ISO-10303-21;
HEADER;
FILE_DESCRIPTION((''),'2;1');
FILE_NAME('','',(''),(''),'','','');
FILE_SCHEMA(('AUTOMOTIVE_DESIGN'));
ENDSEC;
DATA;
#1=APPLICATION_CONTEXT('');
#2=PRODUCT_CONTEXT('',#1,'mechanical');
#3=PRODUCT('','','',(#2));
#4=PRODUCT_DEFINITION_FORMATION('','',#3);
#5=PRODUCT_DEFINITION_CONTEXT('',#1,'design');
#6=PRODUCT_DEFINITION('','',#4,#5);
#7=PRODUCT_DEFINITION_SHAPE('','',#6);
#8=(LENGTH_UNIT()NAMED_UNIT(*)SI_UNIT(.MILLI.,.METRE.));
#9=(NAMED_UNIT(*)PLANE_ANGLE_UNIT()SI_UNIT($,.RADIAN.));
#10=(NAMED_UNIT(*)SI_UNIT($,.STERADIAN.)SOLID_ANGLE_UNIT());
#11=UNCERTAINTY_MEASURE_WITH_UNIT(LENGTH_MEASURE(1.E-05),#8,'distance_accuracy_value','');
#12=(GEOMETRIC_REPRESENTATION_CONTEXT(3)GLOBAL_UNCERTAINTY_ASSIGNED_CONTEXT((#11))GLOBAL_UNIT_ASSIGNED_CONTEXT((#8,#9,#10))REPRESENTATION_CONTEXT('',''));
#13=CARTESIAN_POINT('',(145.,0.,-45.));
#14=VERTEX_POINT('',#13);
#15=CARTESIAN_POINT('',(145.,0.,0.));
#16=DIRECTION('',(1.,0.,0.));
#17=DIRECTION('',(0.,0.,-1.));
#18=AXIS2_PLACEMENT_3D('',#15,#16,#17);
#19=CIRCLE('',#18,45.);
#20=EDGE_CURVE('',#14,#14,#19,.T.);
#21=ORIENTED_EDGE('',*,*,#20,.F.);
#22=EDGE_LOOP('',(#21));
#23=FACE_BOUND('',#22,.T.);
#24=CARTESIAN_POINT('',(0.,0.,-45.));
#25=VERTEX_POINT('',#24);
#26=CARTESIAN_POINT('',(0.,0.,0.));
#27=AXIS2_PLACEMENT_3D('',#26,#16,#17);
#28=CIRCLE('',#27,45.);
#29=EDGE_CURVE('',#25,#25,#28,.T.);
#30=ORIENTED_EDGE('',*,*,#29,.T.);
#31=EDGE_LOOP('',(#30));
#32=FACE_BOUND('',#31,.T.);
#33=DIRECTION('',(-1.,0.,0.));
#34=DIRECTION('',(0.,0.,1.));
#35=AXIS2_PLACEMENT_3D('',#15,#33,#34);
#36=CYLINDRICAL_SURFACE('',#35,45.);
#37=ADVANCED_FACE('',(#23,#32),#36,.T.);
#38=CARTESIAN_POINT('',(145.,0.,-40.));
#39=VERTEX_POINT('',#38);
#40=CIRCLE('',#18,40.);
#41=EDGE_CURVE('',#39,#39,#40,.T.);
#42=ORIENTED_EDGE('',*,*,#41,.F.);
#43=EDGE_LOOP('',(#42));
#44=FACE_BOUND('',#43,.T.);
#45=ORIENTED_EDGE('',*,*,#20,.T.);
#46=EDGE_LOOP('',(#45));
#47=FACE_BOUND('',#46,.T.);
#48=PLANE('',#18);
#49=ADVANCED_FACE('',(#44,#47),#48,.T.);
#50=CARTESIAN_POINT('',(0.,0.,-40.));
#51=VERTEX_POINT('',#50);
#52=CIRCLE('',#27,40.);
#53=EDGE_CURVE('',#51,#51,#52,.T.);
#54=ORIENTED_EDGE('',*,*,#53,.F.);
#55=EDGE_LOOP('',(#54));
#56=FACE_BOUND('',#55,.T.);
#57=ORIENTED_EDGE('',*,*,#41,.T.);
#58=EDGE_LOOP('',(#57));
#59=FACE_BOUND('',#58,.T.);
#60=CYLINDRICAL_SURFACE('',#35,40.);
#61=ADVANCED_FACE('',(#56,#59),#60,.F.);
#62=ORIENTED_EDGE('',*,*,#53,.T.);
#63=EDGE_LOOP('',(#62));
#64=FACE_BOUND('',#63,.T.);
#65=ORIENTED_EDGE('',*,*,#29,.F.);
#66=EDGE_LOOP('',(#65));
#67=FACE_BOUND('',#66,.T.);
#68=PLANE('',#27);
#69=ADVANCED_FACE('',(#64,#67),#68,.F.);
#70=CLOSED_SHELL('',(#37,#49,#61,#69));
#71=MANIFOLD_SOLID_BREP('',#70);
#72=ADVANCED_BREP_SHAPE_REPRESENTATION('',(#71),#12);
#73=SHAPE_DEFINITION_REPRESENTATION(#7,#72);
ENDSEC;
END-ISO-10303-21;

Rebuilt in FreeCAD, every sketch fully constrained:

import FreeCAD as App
import Part
import Sketcher

V = App.Vector

doc = App.newDocument("Part")
params = doc.addObject("Spreadsheet::Sheet", "Params")
for row, (alias, value) in enumerate([
    ("sketch1_diameter", "90 mm"),
    ("sketch1_diameter2", "80 mm"),
    ("pad1_length", "145 mm"),
], start=1):
    params.set(f"A{row}", alias)
    params.set(f"B{row}", "=" + value)
    params.setAlias(f"B{row}", alias)

body = doc.addObject("PartDesign::Body", "Body")

sketch1 = body.newObject("Sketcher::SketchObject", "Sketch")
sketch1.AttachmentSupport = (doc.getObject("YZ_Plane"), [""])
sketch1.MapMode = "FlatFace"
sketch1.addGeometry([
    Part.Circle(V(0, 0, 0), V(0, 0, 1), 45),
    Part.Circle(V(0, 0, 0), V(0, 0, 1), 40),
], False)
sketch1.addConstraint([
    Sketcher.Constraint("Coincident", 0, 3, -1, 1),
    Sketcher.Constraint("Coincident", 1, 3, -1, 1),
    Sketcher.Constraint("Diameter", 0, 90.0),
    Sketcher.Constraint("Diameter", 1, 80.0),
])
sketch1.setExpression("Constraints[2]", "Params.sketch1_diameter")
sketch1.setExpression("Constraints[3]", "Params.sketch1_diameter2")
pad1 = body.newObject("PartDesign::Pad", "Pad")
pad1.Profile = sketch1
pad1.setExpression("Length", "Params.pad1_length")

doc.recompute()
